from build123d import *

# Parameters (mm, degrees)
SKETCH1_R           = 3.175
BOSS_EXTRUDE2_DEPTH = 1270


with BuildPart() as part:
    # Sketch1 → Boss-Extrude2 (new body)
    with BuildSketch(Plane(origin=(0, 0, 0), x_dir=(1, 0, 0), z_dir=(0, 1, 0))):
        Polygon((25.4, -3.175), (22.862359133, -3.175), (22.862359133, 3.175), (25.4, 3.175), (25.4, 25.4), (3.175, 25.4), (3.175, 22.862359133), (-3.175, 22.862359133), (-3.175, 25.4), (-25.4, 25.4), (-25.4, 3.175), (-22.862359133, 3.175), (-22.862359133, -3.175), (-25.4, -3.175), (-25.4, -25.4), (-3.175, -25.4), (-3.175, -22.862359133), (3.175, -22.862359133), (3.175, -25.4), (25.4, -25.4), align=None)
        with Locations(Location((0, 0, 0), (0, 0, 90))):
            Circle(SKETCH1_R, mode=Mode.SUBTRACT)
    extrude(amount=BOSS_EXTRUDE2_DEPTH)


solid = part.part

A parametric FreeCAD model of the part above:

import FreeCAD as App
import Part
import Sketcher
Q = App.Units.Quantity

doc = App.newDocument("Part")
body = doc.addObject("PartDesign::Body", "Body")

# Sketch on XZ plane
sketch1 = body.newObject("Sketcher::SketchObject", "Sketch")
sketch1.AttachmentSupport = (doc.getObject("XZ_Plane"), [""])
sketch1.MapMode = "FlatFace"
sketch1.addGeometry(Part.LineSegment(App.Vector(25.4, 3.175, 0), App.Vector(22.862359, 3.175, 0)), False)
sketch1.addGeometry(Part.LineSegment(App.Vector(22.862359, 3.175, 0), App.Vector(22.862359, -3.175, 0)), False)
sketch1.addGeometry(Part.LineSegment(App.Vector(22.862359, -3.175, 0), App.Vector(25.4, -3.175, 0)), False)
sketch1.addGeometry(Part.LineSegment(App.Vector(25.4, -3.175, 0), App.Vector(25.4, -25.4, 0)), False)
sketch1.addGeometry(Part.LineSegment(App.Vector(25.4, -25.4, 0), App.Vector(3.175, -25.4, 0)), False)
sketch1.addGeometry(Part.LineSegment(App.Vector(3.175, -25.4, 0), App.Vector(3.175, -22.862359, 0)), False)
sketch1.addGeometry(Part.LineSegment(App.Vector(3.175, -22.862359, 0), App.Vector(-3.175, -22.862359, 0)), False)
sketch1.addGeometry(Part.LineSegment(App.Vector(-3.175, -22.862359, 0), App.Vector(-3.175, -25.4, 0)), False)
sketch1.addGeometry(Part.LineSegment(App.Vector(-3.175, -25.4, 0), App.Vector(-25.4, -25.4, 0)), False)
sketch1.addGeometry(Part.LineSegment(App.Vector(-25.4, -25.4, 0), App.Vector(-25.4, -3.175, 0)), False)
sketch1.addGeometry(Part.LineSegment(App.Vector(-25.4, -3.175, 0), App.Vector(-22.862359, -3.175, 0)), False)
sketch1.addGeometry(Part.LineSegment(App.Vector(-22.862359, -3.175, 0), App.Vector(-22.862359, 3.175, 0)), False)
sketch1.addGeometry(Part.LineSegment(App.Vector(-22.862359, 3.175, 0), App.Vector(-25.4, 3.175, 0)), False)
sketch1.addGeometry(Part.LineSegment(App.Vector(-25.4, 3.175, 0), App.Vector(-25.4, 25.4, 0)), False)
sketch1.addGeometry(Part.LineSegment(App.Vector(-25.4, 25.4, 0), App.Vector(-3.175, 25.4, 0)), False)
sketch1.addGeometry(Part.LineSegment(App.Vector(-3.175, 25.4, 0), App.Vector(-3.175, 22.862359, 0)), False)
sketch1.addGeometry(Part.LineSegment(App.Vector(-3.175, 22.862359, 0), App.Vector(3.175, 22.862359, 0)), False)
sketch1.addGeometry(Part.LineSegment(App.Vector(3.175, 22.862359, 0), App.Vector(3.175, 25.4, 0)), False)
sketch1.addGeometry(Part.LineSegment(App.Vector(3.175, 25.4, 0), App.Vector(25.4, 25.4, 0)), False)
sketch1.addGeometry(Part.LineSegment(App.Vector(25.4, 25.4, 0), App.Vector(25.4, 3.175, 0)), False)
sketch1.addGeometry(Part.Circle(App.Vector(0, 0, 0), App.Vector(0, 0, 1), 3.175), False)
sketch1.addConstraint(Sketcher.Constraint("Coincident", 0, 2, 1, 1))
sketch1.addConstraint(Sketcher.Constraint("Coincident", 1, 2, 2, 1))
sketch1.addConstraint(Sketcher.Constraint("Coincident", 2, 2, 3, 1))
sketch1.addConstraint(Sketcher.Constraint("Coincident", 3, 2, 4, 1))
sketch1.addConstraint(Sketcher.Constraint("Coincident", 4, 2, 5, 1))
sketch1.addConstraint(Sketcher.Constraint("Coincident", 5, 2, 6, 1))
sketch1.addConstraint(Sketcher.Constraint("Coincident", 6, 2, 7, 1))
sketch1.addConstraint(Sketcher.Constraint("Coincident", 7, 2, 8, 1))
sketch1.addConstraint(Sketcher.Constraint("Coincident", 8, 2, 9, 1))
sketch1.addConstraint(Sketcher.Constraint("Coincident", 9, 2, 10, 1))
sketch1.addConstraint(Sketcher.Constraint("Coincident", 10, 2, 11, 1))
sketch1.addConstraint(Sketcher.Constraint("Coincident", 11, 2, 12, 1))
sketch1.addConstraint(Sketcher.Constraint("Coincident", 12, 2, 13, 1))
sketch1.addConstraint(Sketcher.Constraint("Coincident", 13, 2, 14, 1))
sketch1.addConstraint(Sketcher.Constraint("Coincident", 14, 2, 15, 1))
sketch1.addConstraint(Sketcher.Constraint("Coincident", 15, 2, 16, 1))
sketch1.addConstraint(Sketcher.Constraint("Coincident", 16, 2, 17, 1))
sketch1.addConstraint(Sketcher.Constraint("Coincident", 17, 2, 18, 1))
sketch1.addConstraint(Sketcher.Constraint("Coincident", 18, 2, 19, 1))
sketch1.addConstraint(Sketcher.Constraint("Coincident", 19, 2, 0, 1))
sketch1.addConstraint(Sketcher.Constraint("Horizontal", 0))
sketch1.addConstraint(Sketcher.Constraint("Vertical", 1))
sketch1.addConstraint(Sketcher.Constraint("Horizontal", 2))
sketch1.addConstraint(Sketcher.Constraint("Vertical", 3))
sketch1.addConstraint(Sketcher.Constraint("Horizontal", 4))
sketch1.addConstraint(Sketcher.Constraint("Vertical", 5))
sketch1.addConstraint(Sketcher.Constraint("Horizontal", 6))
sketch1.addConstraint(Sketcher.Constraint("Vertical", 7))
sketch1.addConstraint(Sketcher.Constraint("Horizontal", 8))
sketch1.addConstraint(Sketcher.Constraint("Vertical", 9))
sketch1.addConstraint(Sketcher.Constraint("Horizontal", 10))
sketch1.addConstraint(Sketcher.Constraint("Vertical", 11))
sketch1.addConstraint(Sketcher.Constraint("Horizontal", 12))
sketch1.addConstraint(Sketcher.Constraint("Vertical", 13))
sketch1.addConstraint(Sketcher.Constraint("Horizontal", 14))
sketch1.addConstraint(Sketcher.Constraint("Vertical", 15))
sketch1.addConstraint(Sketcher.Constraint("Horizontal", 16))
sketch1.addConstraint(Sketcher.Constraint("Vertical", 17))
sketch1.addConstraint(Sketcher.Constraint("Horizontal", 18))
sketch1.addConstraint(Sketcher.Constraint("Vertical", 19))
sketch1.addConstraint(Sketcher.Constraint("Coincident", 20, 3, -1, 1))
sketch1.addConstraint(Sketcher.Constraint("Symmetric", 0, 2, 10, 2, -1, 1))
sketch1.addConstraint(Sketcher.Constraint("Symmetric", 2, 2, 12, 2, -1, 1))
sketch1.addConstraint(Sketcher.Constraint("Symmetric", 4, 2, 14, 2, -1, 1))
sketch1.addConstraint(Sketcher.Constraint("Symmetric", 6, 2, 16, 2, -1, 1))
sketch1.addConstraint(Sketcher.Constraint("Symmetric", 8, 2, 18, 2, -1, 1))
sketch1.addConstraint(Sketcher.Constraint("Symmetric", 4, 2, 7, 2, -2))
sketch1.addConstraint(Sketcher.Constraint("Symmetric", 2, 2, 9, 2, -2))
sketch1.addConstraint(Sketcher.Constraint("Equal", 16, 1))
sketch1.addConstraint(Sketcher.Constraint("Equal", 18, 3))
sketch1.addConstraint(Sketcher.Constraint("Equal", 12, 5))
sketch1.addConstraint(Sketcher.Constraint("Diameter", 20, Q("0.25 in")))
sketch1.addConstraint(Sketcher.Constraint("DistanceX", -1, 1, 2, 2, Q("1 in")))
sketch1.addConstraint(Sketcher.Constraint("DistanceX", 6, 2, 6, 1, Q("0.25 in")))
sketch1.addConstraint(Sketcher.Constraint("DistanceX", 0, 2, 0, 1, 2.537641))
pad1 = body.newObject("PartDesign::Pad", "Pad")
pad1.Profile = sketch1
pad1.Length = Q("50 in")
pad1.Reversed = True

doc.recompute()
